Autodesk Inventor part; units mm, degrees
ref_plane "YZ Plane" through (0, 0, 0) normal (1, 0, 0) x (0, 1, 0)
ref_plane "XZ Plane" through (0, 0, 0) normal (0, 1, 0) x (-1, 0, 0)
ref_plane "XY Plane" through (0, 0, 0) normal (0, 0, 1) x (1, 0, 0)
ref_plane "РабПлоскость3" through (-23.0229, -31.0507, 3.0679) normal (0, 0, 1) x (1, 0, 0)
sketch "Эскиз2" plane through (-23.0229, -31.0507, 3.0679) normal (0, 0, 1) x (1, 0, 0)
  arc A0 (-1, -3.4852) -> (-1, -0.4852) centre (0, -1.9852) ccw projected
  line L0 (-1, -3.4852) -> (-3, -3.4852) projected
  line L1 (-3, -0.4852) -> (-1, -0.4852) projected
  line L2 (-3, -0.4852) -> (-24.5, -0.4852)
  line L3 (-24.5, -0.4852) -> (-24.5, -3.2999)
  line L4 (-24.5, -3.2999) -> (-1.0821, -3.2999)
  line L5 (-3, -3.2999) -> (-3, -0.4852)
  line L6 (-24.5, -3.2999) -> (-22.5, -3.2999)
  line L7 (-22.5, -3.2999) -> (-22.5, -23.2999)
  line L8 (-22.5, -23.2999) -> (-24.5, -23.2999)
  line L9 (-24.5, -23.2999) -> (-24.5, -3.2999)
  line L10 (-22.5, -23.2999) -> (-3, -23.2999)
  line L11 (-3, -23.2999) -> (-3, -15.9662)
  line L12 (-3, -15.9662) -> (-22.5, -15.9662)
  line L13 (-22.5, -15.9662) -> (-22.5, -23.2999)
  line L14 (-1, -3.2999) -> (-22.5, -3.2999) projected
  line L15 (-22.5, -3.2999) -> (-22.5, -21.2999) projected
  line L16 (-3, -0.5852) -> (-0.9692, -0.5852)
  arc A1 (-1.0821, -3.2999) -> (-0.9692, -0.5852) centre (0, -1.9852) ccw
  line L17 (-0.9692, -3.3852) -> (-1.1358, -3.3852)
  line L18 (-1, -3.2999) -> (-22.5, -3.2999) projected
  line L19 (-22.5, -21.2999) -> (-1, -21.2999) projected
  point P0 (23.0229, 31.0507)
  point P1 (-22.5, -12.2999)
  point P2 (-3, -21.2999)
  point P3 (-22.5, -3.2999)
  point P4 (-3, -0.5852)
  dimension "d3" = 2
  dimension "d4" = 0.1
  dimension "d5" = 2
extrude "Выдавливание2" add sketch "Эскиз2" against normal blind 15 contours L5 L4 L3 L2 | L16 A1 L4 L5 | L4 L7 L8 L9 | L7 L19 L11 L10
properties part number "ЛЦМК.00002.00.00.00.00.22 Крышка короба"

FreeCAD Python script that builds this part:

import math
import FreeCAD as App
import Part
import Sketcher

V = App.Vector

doc = App.newDocument("Part")
body = doc.addObject("PartDesign::Body", "Body")

# Sketch on XY plane
sketch1 = body.newObject("Sketcher::SketchObject", "Sketch")
sketch1.AttachmentSupport = (doc.getObject("XY_Plane"), [""])
sketch1.MapMode = "FlatFace"
sketch1.AttachmentOffset = App.Placement(V(0, 0, 3.0679), App.Rotation())
sketch1.addGeometry([
    Part.LineSegment(V(-26.0229, -31.6359, 0), V(-26.0229, -31.5359, 0)),  # 0
    Part.LineSegment(V(-26.0229, -31.5359, 0), V(-47.5229, -31.5359, 0)),  # 1
    Part.LineSegment(V(-47.5229, -31.5359, 0), V(-47.5229, -54.3506, 0)),  # 2
    Part.LineSegment(V(-47.5229, -54.3506, 0), V(-26.0229, -54.3506, 0)),  # 3
    Part.LineSegment(V(-26.0229, -54.3506, 0), V(-26.0229, -52.3506, 0)),  # 4
    Part.LineSegment(V(-26.0229, -52.3506, 0), V(-45.5229, -52.3506, 0)),  # 5
    Part.LineSegment(V(-45.5229, -52.3506, 0), V(-45.5229, -34.3506, 0)),  # 6
    Part.LineSegment(V(-45.5229, -34.3506, 0), V(-24.105, -34.3506, 0)),  # 7
    Part.ArcOfCircle(Part.Circle(V(-23.0229, -33.0359, 0), V(0, 0, 1), 1.702756), math.radians(-129.457028), math.radians(124.694302)),  # 8
    Part.LineSegment(V(-23.9921, -31.6359, 0), V(-26.0229, -31.6359, 0)),  # 9
], False)
sketch1.addConstraint([
    Sketcher.Constraint("Coincident", 0, 2, 1, 1),
    Sketcher.Constraint("Coincident", 1, 2, 2, 1),
    Sketcher.Constraint("Coincident", 2, 2, 3, 1),
    Sketcher.Constraint("Coincident", 3, 2, 4, 1),
    Sketcher.Constraint("Coincident", 4, 2, 5, 1),
    Sketcher.Constraint("Coincident", 5, 2, 6, 1),
    Sketcher.Constraint("Coincident", 6, 2, 7, 1),
    Sketcher.Constraint("Coincident", 7, 2, 8, 1),
    Sketcher.Constraint("Coincident", 8, 2, 9, 1),
    Sketcher.Constraint("Coincident", 9, 2, 0, 1),
    Sketcher.Constraint("Vertical", 0),
    Sketcher.Constraint("Horizontal", 1),
    Sketcher.Constraint("Vertical", 2),
    Sketcher.Constraint("Horizontal", 3),
    Sketcher.Constraint("Vertical", 4),
    Sketcher.Constraint("Horizontal", 5),
    Sketcher.Constraint("Vertical", 6),
    Sketcher.Constraint("Horizontal", 7),
    Sketcher.Constraint("Horizontal", 9),
    Sketcher.Constraint("Vertical", 0, 2, 3, 2),
    Sketcher.Constraint("DistanceY", 4, 1, 4, 2, 2.0),
    Sketcher.Constraint("DistanceY", 0, 1, 0, 2, 0.1),
    Sketcher.Constraint("DistanceX", 2, 2, 5, 2, 2.0),
    Sketcher.Constraint("DistanceY", 6, 1, 6, 2, 18.0),
    Sketcher.Constraint("DistanceX", 1, 2, 1, 1, 21.5),
    Sketcher.Constraint("DistanceX", 0, 2, 8, 3, 3.0),
    Sketcher.Constraint("Radius", 8, 1.7028),
    Sketcher.Constraint("DistanceY", 8, 3, 0, 2, 1.5),
    Sketcher.Constraint("DistanceX", 7, 1, 7, 2, 21.418),
    Sketcher.Constraint("DistanceX", 8, 3, -1, 1, 23.023),
    Sketcher.Constraint("DistanceY", 8, 3, -1, 1, 33.036),
])
pad1 = body.newObject("PartDesign::Pad", "Pad")
pad1.Profile = sketch1
pad1.Length = 15
pad1.Reversed = True

doc.recompute()
